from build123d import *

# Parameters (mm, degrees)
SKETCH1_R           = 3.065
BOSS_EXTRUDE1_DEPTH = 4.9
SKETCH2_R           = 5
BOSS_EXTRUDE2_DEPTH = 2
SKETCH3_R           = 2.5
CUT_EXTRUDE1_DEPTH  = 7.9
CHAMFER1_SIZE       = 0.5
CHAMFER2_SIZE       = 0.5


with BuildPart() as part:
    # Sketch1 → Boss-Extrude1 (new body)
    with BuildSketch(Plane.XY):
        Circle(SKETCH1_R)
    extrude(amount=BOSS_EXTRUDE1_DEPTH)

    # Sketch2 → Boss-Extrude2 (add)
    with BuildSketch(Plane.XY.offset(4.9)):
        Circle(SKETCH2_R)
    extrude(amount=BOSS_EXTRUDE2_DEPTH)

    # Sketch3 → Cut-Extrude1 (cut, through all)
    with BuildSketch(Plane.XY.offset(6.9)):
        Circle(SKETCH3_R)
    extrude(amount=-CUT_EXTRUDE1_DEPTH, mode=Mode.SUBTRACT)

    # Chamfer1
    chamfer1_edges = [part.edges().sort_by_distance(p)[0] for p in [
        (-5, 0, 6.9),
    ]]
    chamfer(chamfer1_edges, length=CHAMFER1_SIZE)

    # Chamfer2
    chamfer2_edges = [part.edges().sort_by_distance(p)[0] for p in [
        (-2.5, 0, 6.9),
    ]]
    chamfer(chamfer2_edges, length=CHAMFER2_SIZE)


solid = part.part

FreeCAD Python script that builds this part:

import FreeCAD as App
import Part
import Sketcher
Q = App.Units.Quantity


def edges_at(feature, points):
    """Names of the edges that pass closest to the given points."""
    edges = feature.Shape.Edges
    near = lambda p: min(range(len(edges)), key=lambda i: edges[i].distToShape(Part.Vertex(*p))[0])
    return sorted({f"Edge{near(p) + 1}" for p in points})

doc = App.newDocument("Part")
params = doc.addObject("Spreadsheet::Sheet", "Params")
for row, (alias, value) in enumerate([
    ("sketch1_diameter", "6.13 mm"),
    ("pad1_length", "4.9 mm"),
    ("sketch2_diameter", "10 mm"),
    ("pad2_length", "2 mm"),
    ("sketch3_diameter", "5 mm"),
    ("chamfer_size", "0.5 mm"),
    ("chamfer2_size", "0.5 mm"),
], start=1):
    params.set(f"A{row}", alias)
    params.set(f"B{row}", "=" + value)
    params.setAlias(f"B{row}", alias)

body = doc.addObject("PartDesign::Body", "Body")

sketch1 = doc.addObject("Sketcher::SketchObject", "Sketch")
body.addObject(sketch1)
sketch1.AttachmentSupport = (doc.XY_Plane, [""])
sketch1.MapMode = "FlatFace"
sketch1.addGeometry(Part.Circle(App.Vector(0, 0, 0), App.Vector(0, 0, 1), 3.1), False)
sketch1.addConstraint([
    Sketcher.Constraint("Coincident", 0, 3, -1, 1),
    Sketcher.Constraint("Diameter", 0, Q("6.13 mm")),
])
sketch1.setExpression("Constraints[1]", "Params.sketch1_diameter")
pad1 = doc.addObject("PartDesign::Pad", "Pad")
body.addObject(pad1)
pad1.Profile = sketch1
pad1.setExpression("Length", "Params.pad1_length")

sketch2 = doc.addObject("Sketcher::SketchObject", "Sketch001")
body.addObject(sketch2)
sketch2.AttachmentSupport = (doc.XY_Plane, [""])
sketch2.MapMode = "FlatFace"
sketch2.AttachmentOffset = App.Placement(App.Vector(0, 0, 4.9), App.Rotation())
sketch2.addGeometry(Part.Circle(App.Vector(0, 0, 0), App.Vector(0, 0, 1), 5), False)
sketch2.addConstraint([
    Sketcher.Constraint("Coincident", 0, 3, -1, 1),
    Sketcher.Constraint("Diameter", 0, Q("10 mm")),
])
sketch2.setExpression("Constraints[1]", "Params.sketch2_diameter")
pad2 = doc.addObject("PartDesign::Pad", "Pad001")
body.addObject(pad2)
pad2.Profile = sketch2
pad2.setExpression("Length", "Params.pad2_length")

sketch3 = doc.addObject("Sketcher::SketchObject", "Sketch002")
body.addObject(sketch3)
sketch3.AttachmentSupport = (doc.XY_Plane, [""])
sketch3.MapMode = "FlatFace"
sketch3.AttachmentOffset = App.Placement(App.Vector(0, 0, 6.9), App.Rotation())
sketch3.addGeometry(Part.Circle(App.Vector(0, 0, 0), App.Vector(0, 0, 1), 2.5), False)
sketch3.addConstraint([
    Sketcher.Constraint("Coincident", 0, 3, -1, 1),
    Sketcher.Constraint("Diameter", 0, Q("5 mm")),
])
sketch3.setExpression("Constraints[1]", "Params.sketch3_diameter")
pocket1 = doc.addObject("PartDesign::Pocket", "Pocket")
body.addObject(pocket1)
pocket1.Profile = sketch3
pocket1.Type = "ThroughAll"
doc.recompute()

chamfer = doc.addObject("PartDesign::Chamfer", "Chamfer")
body.addObject(chamfer)
chamfer.Base = (pocket1, edges_at(pocket1, [(-5, 0, 6.9)]))
chamfer.setExpression("Size", "Params.chamfer_size")
doc.recompute()

chamfer2 = doc.addObject("PartDesign::Chamfer", "Chamfer001")
body.addObject(chamfer2)
chamfer2.Base = (chamfer, edges_at(chamfer, [(-2.5, 0, 6.9)]))
chamfer2.setExpression("Size", "Params.chamfer2_size")

doc.recompute()
